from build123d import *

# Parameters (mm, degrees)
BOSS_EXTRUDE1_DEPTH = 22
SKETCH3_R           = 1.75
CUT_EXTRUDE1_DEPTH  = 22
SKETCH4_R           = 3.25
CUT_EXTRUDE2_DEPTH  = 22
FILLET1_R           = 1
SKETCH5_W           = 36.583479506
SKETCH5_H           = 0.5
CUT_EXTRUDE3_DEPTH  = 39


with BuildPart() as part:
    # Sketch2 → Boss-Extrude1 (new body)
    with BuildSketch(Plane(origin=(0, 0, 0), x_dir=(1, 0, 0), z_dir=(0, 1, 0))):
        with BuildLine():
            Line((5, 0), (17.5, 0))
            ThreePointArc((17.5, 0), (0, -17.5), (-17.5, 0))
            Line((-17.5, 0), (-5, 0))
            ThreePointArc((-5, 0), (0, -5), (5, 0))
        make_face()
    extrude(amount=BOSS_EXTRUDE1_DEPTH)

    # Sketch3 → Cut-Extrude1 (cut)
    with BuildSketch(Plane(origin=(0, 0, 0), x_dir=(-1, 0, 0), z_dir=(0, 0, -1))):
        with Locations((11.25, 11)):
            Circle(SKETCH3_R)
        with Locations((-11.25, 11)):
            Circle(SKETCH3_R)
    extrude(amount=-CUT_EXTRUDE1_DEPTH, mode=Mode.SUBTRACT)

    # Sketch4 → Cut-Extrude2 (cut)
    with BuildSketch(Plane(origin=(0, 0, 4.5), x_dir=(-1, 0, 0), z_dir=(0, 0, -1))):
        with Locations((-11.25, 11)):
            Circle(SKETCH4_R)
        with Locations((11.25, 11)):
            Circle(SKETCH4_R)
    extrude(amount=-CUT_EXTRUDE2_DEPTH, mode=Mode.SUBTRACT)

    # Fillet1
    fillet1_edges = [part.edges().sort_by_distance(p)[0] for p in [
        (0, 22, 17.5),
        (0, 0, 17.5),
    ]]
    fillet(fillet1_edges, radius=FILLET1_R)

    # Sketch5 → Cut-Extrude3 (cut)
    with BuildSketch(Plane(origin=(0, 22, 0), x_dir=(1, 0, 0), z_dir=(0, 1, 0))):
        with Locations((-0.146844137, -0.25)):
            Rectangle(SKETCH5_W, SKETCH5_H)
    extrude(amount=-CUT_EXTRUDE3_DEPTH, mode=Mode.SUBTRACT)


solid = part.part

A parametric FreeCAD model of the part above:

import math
import FreeCAD as App
import Part
import Sketcher

V = App.Vector


def edges_at(feature, points):
    """Names of the edges that pass closest to the given points."""
    edges = feature.Shape.Edges
    near = lambda p: min(range(len(edges)), key=lambda i: edges[i].distToShape(Part.Vertex(*p))[0])
    return sorted({f"Edge{near(p) + 1}" for p in points})

doc = App.newDocument("Part")
body = doc.addObject("PartDesign::Body", "Body")

# Sketch on XZ plane
sketch1 = doc.addObject("Sketcher::SketchObject", "Sketch")
body.addObject(sketch1)
sketch1.AttachmentSupport = (doc.XZ_Plane, [""])
sketch1.MapMode = "FlatFace"
sketch1.addGeometry([
    Part.LineSegment(V(18, 0, 0), V(5, 0, 0)),
    Part.ArcOfCircle(Part.Circle(V(0, 0, 0), V(0, 0, 1), 5), math.radians(0), math.radians(180)),
    Part.LineSegment(V(-5, 0, 0), V(-18, 0, 0)),
    Part.ArcOfCircle(Part.Circle(V(0, 0, 0), V(0, 0, 1), 18), math.radians(0), math.radians(180)),
], False)
sketch1.addConstraint([
    Sketcher.Constraint("Coincident", 0, 2, 1, 1),
    Sketcher.Constraint("Coincident", 1, 2, 2, 1),
    Sketcher.Constraint("Coincident", 2, 2, 3, 2),
    Sketcher.Constraint("Coincident", 3, 1, 0, 1),
    Sketcher.Constraint("Horizontal", 0),
    Sketcher.Constraint("Horizontal", 2),
    Sketcher.Constraint("Coincident", 1, 3, -1, 1),
    Sketcher.Constraint("Coincident", 3, 3, -1, 1),
    Sketcher.Constraint("PointOnObject", 0, 2, -1),
    Sketcher.Constraint("PointOnObject", 1, 2, -1),
    Sketcher.Constraint("Radius", 1, 5.0),
    Sketcher.Constraint("Radius", 3, 17.5),
])
pad1 = doc.addObject("PartDesign::Pad", "Pad")
body.addObject(pad1)
pad1.Profile = sketch1
pad1.Length = 22
pad1.Reversed = True

# Sketch on XY plane
sketch2 = doc.addObject("Sketcher::SketchObject", "Sketch001")
body.addObject(sketch2)
sketch2.AttachmentSupport = (doc.XY_Plane, [""])
sketch2.MapMode = "FlatFace"
sketch2.addGeometry([
    Part.Circle(V(-11.2, 11, 0), V(0, 0, 1), 1.8),
    Part.Circle(V(11.2, 11, 0), V(0, 0, 1), 1.8),
], False)
sketch2.addConstraint([
    Sketcher.Constraint("Equal", 0, 1),
    Sketcher.Constraint("Symmetric", 0, 3, 1, 3, -2),
    Sketcher.Constraint("Diameter", 0, 3.5),
    Sketcher.Constraint("DistanceY", -1, 1, 0, 3, 11.0),
    Sketcher.Constraint("DistanceX", 0, 3, 1, 3, 22.5),
])
pocket1 = doc.addObject("PartDesign::Pocket", "Pocket")
body.addObject(pocket1)
pocket1.Profile = sketch2
pocket1.Length = 22
pocket1.Reversed = True

# Sketch on XY plane
sketch3 = doc.addObject("Sketcher::SketchObject", "Sketch002")
body.addObject(sketch3)
sketch3.AttachmentSupport = (doc.XY_Plane, [""])
sketch3.MapMode = "FlatFace"
sketch3.AttachmentOffset = App.Placement(V(0, 0, 4.5), App.Rotation())
sketch3.addGeometry([
    Part.Circle(V(11.2, 11, 0), V(0, 0, 1), 3.2),
    Part.Circle(V(-11.2, 11, 0), V(0, 0, 1), 3.2),
], False)
sketch3.addConstraint([
    Sketcher.Constraint("Equal", 0, 1),
    Sketcher.Constraint("Symmetric", 0, 3, 1, 3, -2),
    Sketcher.Constraint("Diameter", 0, 6.5),
    Sketcher.Constraint("DistanceY", -1, 1, 0, 3, 11.0),
    Sketcher.Constraint("DistanceX", 1, 3, 0, 3, 22.5),
])
pocket2 = doc.addObject("PartDesign::Pocket", "Pocket001")
body.addObject(pocket2)
pocket2.Profile = sketch3
pocket2.Length = 22
pocket2.Reversed = True
doc.recompute()

fillet = doc.addObject("PartDesign::Fillet", "Fillet")
body.addObject(fillet)
fillet.Base = (pocket2, edges_at(pocket2, [(0, 22, 17.5), (0, 0, 17.5)]))
fillet.Radius = 1

# Sketch on XZ plane
sketch4 = doc.addObject("Sketcher::SketchObject", "Sketch003")
body.addObject(sketch4)
sketch4.AttachmentSupport = (doc.XZ_Plane, [""])
sketch4.MapMode = "FlatFace"
sketch4.AttachmentOffset = App.Placement(V(0, 0, -22), App.Rotation())
sketch4.addGeometry([
    Part.LineSegment(V(-18.4, 0, 0), V(-18.4, 0.5, 0)),
    Part.LineSegment(V(-18.4, 0.5, 0), V(18.1, 0.5, 0)),
    Part.LineSegment(V(18.1, 0.5, 0), V(18.1, 0, 0)),
    Part.LineSegment(V(18.1, 0, 0), V(-18.4, 0, 0)),
], False)
sketch4.addConstraint([
    Sketcher.Constraint("Coincident", 0, 2, 1, 1),
    Sketcher.Constraint("Coincident", 1, 2, 2, 1),
    Sketcher.Constraint("Coincident", 2, 2, 3, 1),
    Sketcher.Constraint("Coincident", 3, 2, 0, 1),
    Sketcher.Constraint("Vertical", 0),
    Sketcher.Constraint("Horizontal", 1),
    Sketcher.Constraint("Vertical", 2),
    Sketcher.Constraint("Horizontal", 3),
    Sketcher.Constraint("PointOnObject", 2, 2, -1),
    Sketcher.Constraint("DistanceY", 0, 1, 0, 2, 0.5),
    Sketcher.Constraint("DistanceX", 1, 1, 1, 2, 36.58348),
    Sketcher.Constraint("DistanceX", 0, 2, -1, 1, 18.438584),
])
pocket3 = doc.addObject("PartDesign::Pocket", "Pocket002")
body.addObject(pocket3)
pocket3.Profile = sketch4
pocket3.Length = 39
pocket3.Reversed = True

doc.recompute()
